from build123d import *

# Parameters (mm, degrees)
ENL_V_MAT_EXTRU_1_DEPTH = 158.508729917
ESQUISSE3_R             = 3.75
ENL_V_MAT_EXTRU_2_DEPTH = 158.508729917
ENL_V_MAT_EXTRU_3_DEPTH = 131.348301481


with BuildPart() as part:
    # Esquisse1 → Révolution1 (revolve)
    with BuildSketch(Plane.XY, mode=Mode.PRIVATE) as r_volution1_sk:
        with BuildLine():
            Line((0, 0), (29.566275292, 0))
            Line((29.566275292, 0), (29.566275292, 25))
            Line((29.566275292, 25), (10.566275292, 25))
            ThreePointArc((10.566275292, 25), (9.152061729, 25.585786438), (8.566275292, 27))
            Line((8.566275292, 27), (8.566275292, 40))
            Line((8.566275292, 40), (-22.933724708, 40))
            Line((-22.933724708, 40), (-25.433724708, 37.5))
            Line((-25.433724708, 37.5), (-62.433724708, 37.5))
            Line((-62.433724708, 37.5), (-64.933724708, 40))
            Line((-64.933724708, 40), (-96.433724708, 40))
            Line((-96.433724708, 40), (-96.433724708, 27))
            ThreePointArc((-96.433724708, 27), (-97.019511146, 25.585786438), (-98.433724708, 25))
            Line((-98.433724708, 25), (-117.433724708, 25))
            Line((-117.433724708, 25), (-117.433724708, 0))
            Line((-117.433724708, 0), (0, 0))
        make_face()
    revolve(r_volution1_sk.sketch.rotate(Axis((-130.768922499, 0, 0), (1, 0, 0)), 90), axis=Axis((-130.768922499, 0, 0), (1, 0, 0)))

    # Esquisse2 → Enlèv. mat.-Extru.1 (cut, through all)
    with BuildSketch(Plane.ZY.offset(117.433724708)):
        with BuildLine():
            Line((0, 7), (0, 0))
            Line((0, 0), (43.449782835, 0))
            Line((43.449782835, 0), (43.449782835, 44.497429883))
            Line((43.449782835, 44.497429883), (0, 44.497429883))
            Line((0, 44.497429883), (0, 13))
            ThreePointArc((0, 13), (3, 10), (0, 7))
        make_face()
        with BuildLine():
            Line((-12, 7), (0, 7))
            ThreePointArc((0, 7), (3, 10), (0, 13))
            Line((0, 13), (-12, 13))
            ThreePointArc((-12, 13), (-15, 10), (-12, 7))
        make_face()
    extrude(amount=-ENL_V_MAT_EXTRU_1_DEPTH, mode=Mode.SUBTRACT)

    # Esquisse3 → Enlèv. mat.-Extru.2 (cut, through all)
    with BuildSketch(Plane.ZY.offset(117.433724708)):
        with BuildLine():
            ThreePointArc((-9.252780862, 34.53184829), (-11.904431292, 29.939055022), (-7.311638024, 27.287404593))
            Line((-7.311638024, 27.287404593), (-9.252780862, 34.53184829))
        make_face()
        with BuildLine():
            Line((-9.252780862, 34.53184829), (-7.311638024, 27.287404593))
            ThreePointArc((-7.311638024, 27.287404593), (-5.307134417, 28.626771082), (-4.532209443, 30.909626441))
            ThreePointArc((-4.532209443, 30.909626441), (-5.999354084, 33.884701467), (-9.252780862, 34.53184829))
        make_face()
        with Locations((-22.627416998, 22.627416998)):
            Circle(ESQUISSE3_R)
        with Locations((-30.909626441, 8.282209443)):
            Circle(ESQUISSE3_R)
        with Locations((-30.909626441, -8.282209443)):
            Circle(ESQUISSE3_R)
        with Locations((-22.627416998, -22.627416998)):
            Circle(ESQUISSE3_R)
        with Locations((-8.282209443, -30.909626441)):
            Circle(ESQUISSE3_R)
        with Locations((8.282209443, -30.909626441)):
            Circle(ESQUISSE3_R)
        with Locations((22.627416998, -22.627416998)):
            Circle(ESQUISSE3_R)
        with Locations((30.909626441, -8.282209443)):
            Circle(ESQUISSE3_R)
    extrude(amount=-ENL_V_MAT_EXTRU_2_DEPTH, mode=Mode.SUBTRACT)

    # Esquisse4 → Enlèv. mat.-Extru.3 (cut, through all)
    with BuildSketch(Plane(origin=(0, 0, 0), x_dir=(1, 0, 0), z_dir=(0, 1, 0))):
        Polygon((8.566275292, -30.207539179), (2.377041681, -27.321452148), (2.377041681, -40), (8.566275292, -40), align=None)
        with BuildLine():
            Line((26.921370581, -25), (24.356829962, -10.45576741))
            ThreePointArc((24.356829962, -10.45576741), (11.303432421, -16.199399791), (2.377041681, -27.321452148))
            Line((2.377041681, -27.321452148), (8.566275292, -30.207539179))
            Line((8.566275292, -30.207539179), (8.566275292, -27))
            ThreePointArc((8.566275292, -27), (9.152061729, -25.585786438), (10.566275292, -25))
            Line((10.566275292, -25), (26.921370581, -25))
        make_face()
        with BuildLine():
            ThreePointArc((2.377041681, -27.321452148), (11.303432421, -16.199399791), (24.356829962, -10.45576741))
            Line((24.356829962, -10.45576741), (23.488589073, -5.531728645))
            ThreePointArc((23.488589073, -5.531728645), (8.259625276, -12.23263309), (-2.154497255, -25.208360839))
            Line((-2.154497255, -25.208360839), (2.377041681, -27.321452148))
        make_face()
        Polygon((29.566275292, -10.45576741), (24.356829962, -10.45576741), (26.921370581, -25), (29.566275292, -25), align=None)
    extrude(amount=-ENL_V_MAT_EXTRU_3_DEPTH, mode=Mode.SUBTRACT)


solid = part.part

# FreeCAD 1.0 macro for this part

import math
import FreeCAD as App
import Part
import Sketcher
from FreeCAD import Vector
Q = App.Units.Quantity

doc = App.newDocument("Part")
body = doc.addObject("PartDesign::Body", "Body")

# Sketch on XY plane
sketch1 = doc.addObject("Sketcher::SketchObject", "Sketch")
body.addObject(sketch1)
sketch1.AttachmentSupport = (doc.XY_Plane, [""])
sketch1.MapMode = "FlatFace"
sketch1.addGeometry([
    Part.LineSegment(Vector(29.566275, 0, 0), Vector(29.566275, 25, 0)),  # 0
    Part.LineSegment(Vector(29.566275, 25, 0), Vector(10.566275, 25, 0)),  # 1
    Part.ArcOfCircle(Part.Circle(Vector(10.566275, 27, 0), Vector(0, 0, 1), 2), math.radians(180), math.radians(270)),  # 2
    Part.LineSegment(Vector(8.566275, 27, 0), Vector(8.566275, 40, 0)),  # 3
    Part.LineSegment(Vector(8.566275, 40, 0), Vector(-22.933725, 40, 0)),  # 4
    Part.LineSegment(Vector(-22.933725, 40, 0), Vector(-25.433725, 37.5, 0)),  # 5
    Part.LineSegment(Vector(-25.433725, 37.5, 0), Vector(-62.433725, 37.5, 0)),  # 6
    Part.LineSegment(Vector(-62.433725, 37.5, 0), Vector(-64.933725, 40, 0)),  # 7
    Part.LineSegment(Vector(-64.933725, 40, 0), Vector(-96.433725, 40, 0)),  # 8
    Part.LineSegment(Vector(-96.433725, 40, 0), Vector(-96.433725, 27, 0)),  # 9
    Part.ArcOfCircle(Part.Circle(Vector(-98.433725, 27, 0), Vector(0, 0, 1), 2), math.radians(-90), math.radians(0)),  # 10
    Part.LineSegment(Vector(-98.433725, 25, 0), Vector(-117.433725, 25, 0)),  # 11
    Part.LineSegment(Vector(-117.433725, 25, 0), Vector(-117.433725, 0, 0)),  # 12
    Part.LineSegment(Vector(-117.433725, 0, 0), Vector(29.566275, 0, 0)),  # 13
], False)
sketch1.addConstraint([
    Sketcher.Constraint("Coincident", 0, 2, 1, 1),
    Sketcher.Constraint("Tangent", 1, 2, 2, 2),
    Sketcher.Constraint("Tangent", 2, 1, 3, 1),
    Sketcher.Constraint("Coincident", 3, 2, 4, 1),
    Sketcher.Constraint("Coincident", 4, 2, 5, 1),
    Sketcher.Constraint("Coincident", 5, 2, 6, 1),
    Sketcher.Constraint("Coincident", 6, 2, 7, 1),
    Sketcher.Constraint("Coincident", 7, 2, 8, 1),
    Sketcher.Constraint("Coincident", 8, 2, 9, 1),
    Sketcher.Constraint("Tangent", 9, 2, 10, 2),
    Sketcher.Constraint("Tangent", 10, 1, 11, 1),
    Sketcher.Constraint("Coincident", 11, 2, 12, 1),
    Sketcher.Constraint("Coincident", 12, 2, 13, 1),
    Sketcher.Constraint("Coincident", 13, 2, 0, 1),
    Sketcher.Constraint("Vertical", 0),
    Sketcher.Constraint("Horizontal", 1),
    Sketcher.Constraint("Vertical", 3),
    Sketcher.Constraint("Horizontal", 4),
    Sketcher.Constraint("Horizontal", 6),
    Sketcher.Constraint("Horizontal", 8),
    Sketcher.Constraint("Vertical", 9),
    Sketcher.Constraint("Horizontal", 11),
    Sketcher.Constraint("Vertical", 12),
    Sketcher.Constraint("Horizontal", 13),
    Sketcher.Constraint("Equal", 2, 10),
    Sketcher.Constraint("PointOnObject", 12, 2, -1),
    Sketcher.Constraint("Perpendicular", 5, 7),
    Sketcher.Constraint("Horizontal", 2, 3, 10, 3),
    Sketcher.Constraint("Horizontal", 4, 2, 7, 2),
    Sketcher.Constraint("Equal", 4, 8),
    Sketcher.Constraint("Equal", 1, 11),
    Sketcher.Constraint("Equal", 5, 7),
    Sketcher.Constraint("Radius", 2, 2.0),
    Sketcher.Constraint("DistanceX", 1, 2, 1, 1, 19.0),
    Sketcher.Constraint("DistanceX", 6, 2, 6, 1, 37.0),
    Sketcher.Constraint("DistanceX", 13, 1, 13, 2, 147.0),
    Sketcher.Constraint("DistanceY", 0, 1, 0, 2, 25.0),
    Sketcher.Constraint("DistanceY", 3, 1, 3, 2, 13.0),
    Sketcher.Constraint("DistanceX", 4, 2, 4, 1, 31.5),
    Sketcher.Constraint("DistanceX", -1, 1, 2, 3, 10.566275),
])
revolution = doc.addObject("PartDesign::Revolution", "Revolution")
body.addObject(revolution)
revolution.Profile = sketch1
revolution.ReferenceAxis = (sketch1, ["H_Axis"])
revolution.Angle = 360

# Sketch on YZ plane
sketch2 = doc.addObject("Sketcher::SketchObject", "Sketch001")
body.addObject(sketch2)
sketch2.AttachmentSupport = (doc.YZ_Plane, [""])
sketch2.MapMode = "FlatFace"
sketch2.AttachmentOffset = App.Placement(Vector(0, 0, -117.433725), App.Rotation())
sketch2.addGeometry([
    Part.LineSegment(Vector(7, 0, 0), Vector(0, 0, 0)),  # 0
    Part.LineSegment(Vector(0, 0, 0), Vector(0, 43.449783, 0)),  # 1
    Part.LineSegment(Vector(0, 43.449783, 0), Vector(44.49743, 43.449783, 0)),  # 2
    Part.LineSegment(Vector(44.49743, 43.449783, 0), Vector(44.49743, 0, 0)),  # 3
    Part.LineSegment(Vector(44.49743, 0, 0), Vector(13, 0, 0)),  # 4
    Part.LineSegment(Vector(13, 0, 0), Vector(13, -12, 0)),  # 5
    Part.ArcOfCircle(Part.Circle(Vector(10, -12, 0), Vector(0, 0, 1), 3), math.radians(180), math.radians(360)),  # 6
    Part.LineSegment(Vector(7, -12, 0), Vector(7, 0, 0)),  # 7
], False)
sketch2.addConstraint([
    Sketcher.Constraint("Coincident", 0, 2, 1, 1),
    Sketcher.Constraint("Coincident", 1, 2, 2, 1),
    Sketcher.Constraint("Coincident", 2, 2, 3, 1),
    Sketcher.Constraint("Coincident", 3, 2, 4, 1),
    Sketcher.Constraint("Coincident", 4, 2, 5, 1),
    Sketcher.Constraint("Tangent", 5, 2, 6, 2),
    Sketcher.Constraint("Tangent", 6, 1, 7, 1),
    Sketcher.Constraint("Coincident", 7, 2, 0, 1),
    Sketcher.Constraint("Horizontal", 0),
    Sketcher.Constraint("Vertical", 1),
    Sketcher.Constraint("Horizontal", 2),
    Sketcher.Constraint("Vertical", 3),
    Sketcher.Constraint("Horizontal", 4),
    Sketcher.Constraint("Vertical", 5),
    Sketcher.Constraint("Vertical", 7),
    Sketcher.Constraint("Coincident", 0, 2, -1, 1),
    Sketcher.Constraint("PointOnObject", 3, 2, -1),
    Sketcher.Constraint("Radius", 6, 3.0),
    Sketcher.Constraint("DistanceX", 0, 2, 0, 1, 7.0),
    Sketcher.Constraint("DistanceY", 5, 2, 5, 1, 12.0),
    Sketcher.Constraint("DistanceX", 2, 1, 2, 2, 44.49743),
    Sketcher.Constraint("DistanceY", 1, 1, 1, 2, 43.449783),
])
pocket1 = doc.addObject("PartDesign::Pocket", "Pocket")
body.addObject(pocket1)
pocket1.Profile = sketch2
pocket1.Type = "ThroughAll"
pocket1.Reversed = True

# Sketch on YZ plane
sketch3 = doc.addObject("Sketcher::SketchObject", "Sketch002")
body.addObject(sketch3)
sketch3.AttachmentSupport = (doc.YZ_Plane, [""])
sketch3.MapMode = "FlatFace"
sketch3.AttachmentOffset = App.Placement(Vector(0, 0, -117.433725), App.Rotation())
sketch3.addGeometry([
    Part.ArcOfCircle(Part.Circle(Vector(30.909626, -8.282209, 0), Vector(0, 0, 1), 3.75), math.radians(165), math.radians(345)),  # 0
    Part.ArcOfCircle(Part.Circle(Vector(30.909626, -8.282209, 0), Vector(0, 0, 1), 3.75), math.radians(90), math.radians(165)),  # 1
    Part.ArcOfCircle(Part.Circle(Vector(30.909626, -8.282209, 0), Vector(0, 0, 1), 3.75), math.radians(-15), math.radians(90)),  # 2
    Part.Circle(Vector(22.627417, -22.627417, 0), Vector(0, 0, 1), 3.75),  # 3
    Part.Circle(Vector(8.282209, -30.909626, 0), Vector(0, 0, 1), 3.75),  # 4
    Part.Circle(Vector(-8.282209, -30.909626, 0), Vector(0, 0, 1), 3.75),  # 5
    Part.Circle(Vector(-22.627417, -22.627417, 0), Vector(0, 0, 1), 3.75),  # 6
    Part.Circle(Vector(-30.909626, -8.282209, 0), Vector(0, 0, 1), 3.75),  # 7
    Part.Circle(Vector(-30.909626, 8.282209, 0), Vector(0, 0, 1), 3.75),  # 8
    Part.Circle(Vector(-22.627417, 22.627417, 0), Vector(0, 0, 1), 3.75),  # 9
    Part.Circle(Vector(-8.282209, 30.909626, 0), Vector(0, 0, 1), 3.75),  # 10
], False)
sketch3.addConstraint([
    Sketcher.Constraint("Tangent", 0, 1, 1, 2),
    Sketcher.Constraint("Tangent", 1, 1, 2, 2),
    Sketcher.Constraint("Tangent", 2, 1, 0, 2),
    Sketcher.Constraint("Equal", 2, 3),
    Sketcher.Constraint("Equal", 3, 4),
    Sketcher.Constraint("Equal", 4, 5),
    Sketcher.Constraint("Equal", 5, 6),
    Sketcher.Constraint("Equal", 6, 7),
    Sketcher.Constraint("Equal", 7, 8),
    Sketcher.Constraint("Equal", 8, 9),
    Sketcher.Constraint("Equal", 9, 10),
    Sketcher.Constraint("Symmetric", 0, 3, 8, 3, -1, 1),
    Sketcher.Constraint("Symmetric", 3, 3, 9, 3, -1, 1),
    Sketcher.Constraint("Symmetric", 4, 3, 10, 3, -1, 1),
    Sketcher.Constraint("Symmetric", 4, 3, 5, 3, -2),
    Sketcher.Constraint("Symmetric", 3, 3, 6, 3, -2),
    Sketcher.Constraint("Symmetric", 0, 3, 7, 3, -2),
    Sketcher.Constraint("Vertical", 2, 3, 1, 1),
    Sketcher.Constraint("Diameter", 3, 7.5),
    Sketcher.Constraint("DistanceY", 0, 3, -1, 1, 8.282209),
    Sketcher.Constraint("DistanceX", -1, 1, 4, 3, 8.282209),
    Sketcher.Constraint("DistanceY", 0, 1, -1, 1, 7.311638),
    Sketcher.Constraint("DistanceX", -1, 1, 2, 1, 34.531848),
    Sketcher.Constraint("DistanceY", 2, 1, -1, 1, 9.252781),
    Sketcher.Constraint("DistanceX", 3, 3, 0, 3, 8.282209),
    Sketcher.Constraint("DistanceY", 4, 3, 3, 3, 8.282209),
    Sketcher.Constraint("DistanceY", 3, 3, 0, 1, 15.315779),
])
pocket2 = doc.addObject("PartDesign::Pocket", "Pocket001")
body.addObject(pocket2)
pocket2.Profile = sketch3
pocket2.Type = "ThroughAll"
pocket2.Reversed = True

# Sketch on XZ plane
sketch4 = doc.addObject("Sketcher::SketchObject", "Sketch003")
body.addObject(sketch4)
sketch4.AttachmentSupport = (doc.XZ_Plane, [""])
sketch4.MapMode = "FlatFace"
sketch4.addGeometry([
    Part.LineSegment(Vector(2.377042, 27.321452, 0), Vector(2.377042, 40, 0)),  # 0
    Part.LineSegment(Vector(2.377042, 40, 0), Vector(8.566275, 40, 0)),  # 1
    Part.LineSegment(Vector(8.566275, 40, 0), Vector(8.566275, 27, 0)),  # 2
    Part.ArcOfCircle(Part.Circle(Vector(10.566275, 27, 0), Vector(0, 0, 1), 2), math.radians(180), math.radians(270)),  # 3
    Part.LineSegment(Vector(10.566275, 25, 0), Vector(29.566275, 25, 0)),  # 4
    Part.LineSegment(Vector(29.566275, 25, 0), Vector(29.566275, 10.455767, 0)),  # 5
    Part.LineSegment(Vector(29.566275, 10.455767, 0), Vector(24.35683, 10.455767, 0)),  # 6
    Part.LineSegment(Vector(24.35683, 10.455767, 0), Vector(23.488589, 5.531729, 0)),  # 7
    Part.ArcOfCircle(Part.Circle(Vector(29.566275, 40, 0), Vector(0, 0, 1), 35), math.radians(-155), math.radians(-100)),  # 8
    Part.LineSegment(Vector(-2.154497, 25.208361, 0), Vector(2.377042, 27.321452, 0)),  # 9
], False)
sketch4.addConstraint([
    Sketcher.Constraint("Coincident", 0, 2, 1, 1),
    Sketcher.Constraint("Coincident", 1, 2, 2, 1),
    Sketcher.Constraint("Tangent", 2, 2, 3, 1),
    Sketcher.Constraint("Tangent", 3, 2, 4, 1),
    Sketcher.Constraint("Coincident", 4, 2, 5, 1),
    Sketcher.Constraint("Coincident", 5, 2, 6, 1),
    Sketcher.Constraint("Coincident", 6, 2, 7, 1),
    Sketcher.Constraint("Coincident", 7, 2, 8, 2),
    Sketcher.Constraint("Coincident", 8, 1, 9, 1),
    Sketcher.Constraint("Coincident", 9, 2, 0, 1),
    Sketcher.Constraint("Vertical", 0),
    Sketcher.Constraint("Horizontal", 1),
    Sketcher.Constraint("Vertical", 2),
    Sketcher.Constraint("Horizontal", 4),
    Sketcher.Constraint("Vertical", 5),
    Sketcher.Constraint("Horizontal", 6),
    Sketcher.Constraint("Horizontal", 8, 3, 0, 2),
    Sketcher.Constraint("Vertical", 8, 3, 4, 2),
    Sketcher.Constraint("Equal", 7, 9),
    Sketcher.Constraint("Radius", 3, 2.0),
    Sketcher.Constraint("Radius", 8, 35.0),
    Sketcher.Constraint("DistanceX", 4, 1, 4, 2, 19.0),
    Sketcher.Constraint("DistanceY", 2, 2, 2, 1, 13.0),
    Sketcher.Constraint("Angle", 7, Q("-100 deg")),
    Sketcher.Constraint("Angle", 9, Q("25 deg")),
    Sketcher.Constraint("Distance", 7, 5.0),
    Sketcher.Constraint("DistanceY", -1, 1, 3, 3, 27.0),
    Sketcher.Constraint("DistanceX", 1, 1, 1, 2, 6.189234),
    Sketcher.Constraint("DistanceX", 6, 2, 6, 1, 5.209445),
    Sketcher.Constraint("DistanceX", -1, 1, 0, 2, 2.377042),
])
pocket3 = doc.addObject("PartDesign::Pocket", "Pocket002")
body.addObject(pocket3)
pocket3.Profile = sketch4
pocket3.Type = "ThroughAll"
pocket3.Reversed = True

doc.recompute()
